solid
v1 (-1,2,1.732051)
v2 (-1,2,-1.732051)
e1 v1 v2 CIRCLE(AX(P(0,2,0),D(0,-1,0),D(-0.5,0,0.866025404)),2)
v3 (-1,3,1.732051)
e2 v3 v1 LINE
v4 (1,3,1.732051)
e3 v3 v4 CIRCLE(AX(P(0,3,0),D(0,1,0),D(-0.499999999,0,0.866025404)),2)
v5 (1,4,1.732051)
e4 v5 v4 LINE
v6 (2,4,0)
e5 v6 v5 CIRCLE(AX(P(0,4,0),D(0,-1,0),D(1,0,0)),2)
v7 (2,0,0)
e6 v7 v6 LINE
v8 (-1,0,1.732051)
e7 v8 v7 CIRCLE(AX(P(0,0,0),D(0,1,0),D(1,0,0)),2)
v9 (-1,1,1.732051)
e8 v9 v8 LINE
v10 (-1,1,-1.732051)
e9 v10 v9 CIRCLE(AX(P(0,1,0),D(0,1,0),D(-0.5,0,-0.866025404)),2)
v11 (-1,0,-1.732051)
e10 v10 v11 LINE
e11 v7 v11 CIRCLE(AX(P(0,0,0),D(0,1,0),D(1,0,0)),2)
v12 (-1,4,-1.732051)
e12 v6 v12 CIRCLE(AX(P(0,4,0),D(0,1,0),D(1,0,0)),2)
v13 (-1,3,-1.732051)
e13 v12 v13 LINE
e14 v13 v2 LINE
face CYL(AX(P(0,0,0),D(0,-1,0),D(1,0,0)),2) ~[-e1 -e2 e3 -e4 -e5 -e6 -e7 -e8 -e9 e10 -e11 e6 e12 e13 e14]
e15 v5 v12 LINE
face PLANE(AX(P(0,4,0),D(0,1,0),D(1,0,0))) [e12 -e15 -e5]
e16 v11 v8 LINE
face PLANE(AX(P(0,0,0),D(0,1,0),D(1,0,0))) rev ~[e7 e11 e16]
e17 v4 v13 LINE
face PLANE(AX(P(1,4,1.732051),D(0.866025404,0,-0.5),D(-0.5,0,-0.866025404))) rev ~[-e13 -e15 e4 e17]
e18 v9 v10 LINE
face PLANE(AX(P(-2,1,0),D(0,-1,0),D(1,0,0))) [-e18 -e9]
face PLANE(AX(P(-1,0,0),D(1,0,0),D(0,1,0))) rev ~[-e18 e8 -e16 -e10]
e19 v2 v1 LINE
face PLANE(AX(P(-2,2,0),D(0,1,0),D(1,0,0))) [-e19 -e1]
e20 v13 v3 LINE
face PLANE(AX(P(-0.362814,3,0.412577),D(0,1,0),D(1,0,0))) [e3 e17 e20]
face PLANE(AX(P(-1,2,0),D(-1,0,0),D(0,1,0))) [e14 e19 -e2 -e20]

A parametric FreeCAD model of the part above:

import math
import FreeCAD as App
import Part
import Sketcher
Q = App.Units.Quantity


def add_polygon(sketch, points):
    """Adds a closed chain of lines whose ends are joined by coincident constraints."""
    first, n = sketch.GeometryCount, len(points)
    for a, b in zip(points, points[1:] + points[:1]):
        sketch.addGeometry(Part.LineSegment(App.Vector(*a, 0), App.Vector(*b, 0)), False)
    for i in range(n):
        sketch.addConstraint(Sketcher.Constraint("Coincident", first + i, 2, first + (i + 1) % n, 1))

doc = App.newDocument("Part")
body = doc.addObject("PartDesign::Body", "Body")

# Sketch on XZ plane
sketch1 = body.newObject("Sketcher::SketchObject", "Sketch")
sketch1.AttachmentSupport = (doc.getObject("XZ_Plane"), [""])
sketch1.MapMode = "FlatFace"
sketch1.addGeometry(Part.Circle(App.Vector(0, 0, 0), App.Vector(0, 0, 1), 2), False)
sketch1.addConstraint([
    Sketcher.Constraint("Coincident", 0, 3, -1, 1),
    Sketcher.Constraint("Diameter", 0, 4.0),
])
pad1 = body.newObject("PartDesign::Pad", "Pad")
pad1.Profile = sketch1
pad1.Length = 4
pad1.Reversed = True

# Sketch on XY plane
sketch2 = body.newObject("Sketcher::SketchObject", "Sketch001")
sketch2.AttachmentSupport = (doc.getObject("XY_Plane"), [""])
sketch2.MapMode = "FlatFace"
add_polygon(sketch2, [(-2, 4), (-2, 2), (-1, 2), (-1, 4)])  # lines 0-3
add_polygon(sketch2, [(-2, 1), (-2, 0), (-1, 0), (-1, 1)])  # lines 4-7
sketch2.addConstraint([
    Sketcher.Constraint("Vertical", 0),
    Sketcher.Constraint("Horizontal", 1),
    Sketcher.Constraint("Vertical", 2),
    Sketcher.Constraint("Horizontal", 3),
    Sketcher.Constraint("Vertical", 4),
    Sketcher.Constraint("Horizontal", 5),
    Sketcher.Constraint("Vertical", 6),
    Sketcher.Constraint("Horizontal", 7),
    Sketcher.Constraint("PointOnObject", 4, 2, -1),
    Sketcher.Constraint("Vertical", 3, 2, 4, 2),
    Sketcher.Constraint("Vertical", 2, 2, 5, 2),
    Sketcher.Constraint("Equal", 7, 4),
    Sketcher.Constraint("DistanceX", 1, 1, 1, 2, 1.0),
    Sketcher.Constraint("DistanceY", 0, 2, 0, 1, 2.0),
    Sketcher.Constraint("DistanceX", 0, 2, -1, 1, 2.0),
    Sketcher.Constraint("DistanceY", -1, 1, 0, 2, 2.0),
])
pocket1 = body.newObject("PartDesign::Pocket", "Pocket")
pocket1.Profile = sketch2
pocket1.Length = 4
pocket1.Midplane = True

# Sketch on XZ plane
sketch3 = body.newObject("Sketcher::SketchObject", "Sketch002")
sketch3.AttachmentSupport = (doc.getObject("XZ_Plane"), [""])
sketch3.MapMode = "FlatFace"
sketch3.AttachmentOffset = App.Placement(App.Vector(0, 0, -4), App.Rotation())
sketch3.addGeometry([
    Part.ArcOfCircle(Part.Circle(App.Vector(0, 0, 0), App.Vector(0, 0, 1), 2), math.radians(60), math.radians(120)),
    Part.LineSegment(App.Vector(1, 1.732051, 0), App.Vector(-1, -1.732051, 0)),
    Part.LineSegment(App.Vector(-1, -1.732051, 0), App.Vector(-1, 1.732051, 0)),
], False)
sketch3.addConstraint([
    Sketcher.Constraint("Coincident", 0, 1, 1, 1),
    Sketcher.Constraint("Coincident", 1, 2, 2, 1),
    Sketcher.Constraint("Coincident", 2, 2, 0, 2),
    Sketcher.Constraint("Vertical", 2),
    Sketcher.Constraint("Coincident", 0, 3, -1, 1),
    Sketcher.Constraint("Symmetric", 0, 1, 1, 2, -1, 1),
    Sketcher.Constraint("Radius", 0, 2.0),
    Sketcher.Constraint("Angle", 1, Q("-120 deg")),
])
pocket2 = body.newObject("PartDesign::Pocket", "Pocket001")
pocket2.Profile = sketch3
pocket2.Type = "TwoLengths"
pocket2.Length = 1
pocket2.Length2 = 1

doc.recompute()
